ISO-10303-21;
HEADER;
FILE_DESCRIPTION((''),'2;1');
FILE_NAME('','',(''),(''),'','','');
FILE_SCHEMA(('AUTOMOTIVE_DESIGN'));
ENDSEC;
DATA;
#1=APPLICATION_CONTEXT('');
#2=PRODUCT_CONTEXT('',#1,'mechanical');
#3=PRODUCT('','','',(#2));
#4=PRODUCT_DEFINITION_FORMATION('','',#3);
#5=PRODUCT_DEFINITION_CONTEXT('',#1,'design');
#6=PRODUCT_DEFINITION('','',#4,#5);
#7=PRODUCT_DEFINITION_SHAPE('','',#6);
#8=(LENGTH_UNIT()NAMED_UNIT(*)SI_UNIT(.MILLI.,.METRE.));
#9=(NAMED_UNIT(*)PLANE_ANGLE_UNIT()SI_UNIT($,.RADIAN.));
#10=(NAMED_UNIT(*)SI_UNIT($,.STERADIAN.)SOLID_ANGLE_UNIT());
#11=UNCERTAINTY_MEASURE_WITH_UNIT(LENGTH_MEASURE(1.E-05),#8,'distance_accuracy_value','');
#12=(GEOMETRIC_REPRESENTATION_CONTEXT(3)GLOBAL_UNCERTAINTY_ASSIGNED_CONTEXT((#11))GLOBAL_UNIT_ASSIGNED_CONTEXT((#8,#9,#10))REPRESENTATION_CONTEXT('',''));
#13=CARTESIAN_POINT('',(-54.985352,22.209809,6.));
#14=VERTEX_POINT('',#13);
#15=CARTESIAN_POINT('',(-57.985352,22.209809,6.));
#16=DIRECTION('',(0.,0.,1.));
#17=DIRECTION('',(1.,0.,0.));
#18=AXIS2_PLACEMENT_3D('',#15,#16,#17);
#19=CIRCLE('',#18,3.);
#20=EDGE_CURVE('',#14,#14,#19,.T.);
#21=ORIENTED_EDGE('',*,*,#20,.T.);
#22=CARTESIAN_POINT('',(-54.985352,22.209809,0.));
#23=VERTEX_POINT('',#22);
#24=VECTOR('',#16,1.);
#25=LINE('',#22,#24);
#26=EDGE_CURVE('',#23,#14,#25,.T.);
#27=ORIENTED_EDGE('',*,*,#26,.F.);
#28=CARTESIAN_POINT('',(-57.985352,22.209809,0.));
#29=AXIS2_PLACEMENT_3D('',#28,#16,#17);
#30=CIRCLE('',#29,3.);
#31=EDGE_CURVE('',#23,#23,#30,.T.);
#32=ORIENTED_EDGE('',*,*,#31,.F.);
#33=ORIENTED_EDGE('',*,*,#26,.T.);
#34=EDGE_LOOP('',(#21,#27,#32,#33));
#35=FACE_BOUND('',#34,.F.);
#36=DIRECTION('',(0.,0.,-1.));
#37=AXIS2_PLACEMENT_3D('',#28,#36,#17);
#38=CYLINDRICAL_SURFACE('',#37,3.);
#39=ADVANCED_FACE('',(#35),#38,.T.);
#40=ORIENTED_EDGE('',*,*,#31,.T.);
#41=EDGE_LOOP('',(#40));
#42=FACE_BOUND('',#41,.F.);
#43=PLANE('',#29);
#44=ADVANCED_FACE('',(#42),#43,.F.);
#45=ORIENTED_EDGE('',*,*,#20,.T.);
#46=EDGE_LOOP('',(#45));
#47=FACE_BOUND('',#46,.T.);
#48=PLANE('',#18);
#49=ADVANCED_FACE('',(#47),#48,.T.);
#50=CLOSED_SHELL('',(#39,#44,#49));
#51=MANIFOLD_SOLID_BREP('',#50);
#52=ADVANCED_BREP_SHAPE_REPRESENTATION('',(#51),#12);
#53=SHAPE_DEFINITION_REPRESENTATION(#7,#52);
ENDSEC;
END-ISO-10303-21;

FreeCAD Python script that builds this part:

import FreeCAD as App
import Part
import Sketcher
from FreeCAD import Vector
Q = App.Units.Quantity

doc = App.newDocument("Part")
body = doc.addObject("PartDesign::Body", "Body")

sketch1 = body.newObject("Sketcher::SketchObject", "Sketch")
sketch1.AttachmentSupport = (doc.getObject("XY_Plane"), [""])
sketch1.MapMode = "FlatFace"
sketch1.addGeometry(Part.Circle(Vector(-57.985352, 22.209809, 0), Vector(0, 0, 1), 3), False)
sketch1.addConstraint([
    Sketcher.Constraint("Diameter", 0, Q("6 mm")),
    Sketcher.Constraint("DistanceX", 0, 3, -1, 1, Q("57.985352 mm")),
    Sketcher.Constraint("DistanceY", -1, 1, 0, 3, Q("22.209809 mm")),
])
pad1 = body.newObject("PartDesign::Pad", "Pad")
pad1.Profile = sketch1
pad1.Length = 6

doc.recompute()
